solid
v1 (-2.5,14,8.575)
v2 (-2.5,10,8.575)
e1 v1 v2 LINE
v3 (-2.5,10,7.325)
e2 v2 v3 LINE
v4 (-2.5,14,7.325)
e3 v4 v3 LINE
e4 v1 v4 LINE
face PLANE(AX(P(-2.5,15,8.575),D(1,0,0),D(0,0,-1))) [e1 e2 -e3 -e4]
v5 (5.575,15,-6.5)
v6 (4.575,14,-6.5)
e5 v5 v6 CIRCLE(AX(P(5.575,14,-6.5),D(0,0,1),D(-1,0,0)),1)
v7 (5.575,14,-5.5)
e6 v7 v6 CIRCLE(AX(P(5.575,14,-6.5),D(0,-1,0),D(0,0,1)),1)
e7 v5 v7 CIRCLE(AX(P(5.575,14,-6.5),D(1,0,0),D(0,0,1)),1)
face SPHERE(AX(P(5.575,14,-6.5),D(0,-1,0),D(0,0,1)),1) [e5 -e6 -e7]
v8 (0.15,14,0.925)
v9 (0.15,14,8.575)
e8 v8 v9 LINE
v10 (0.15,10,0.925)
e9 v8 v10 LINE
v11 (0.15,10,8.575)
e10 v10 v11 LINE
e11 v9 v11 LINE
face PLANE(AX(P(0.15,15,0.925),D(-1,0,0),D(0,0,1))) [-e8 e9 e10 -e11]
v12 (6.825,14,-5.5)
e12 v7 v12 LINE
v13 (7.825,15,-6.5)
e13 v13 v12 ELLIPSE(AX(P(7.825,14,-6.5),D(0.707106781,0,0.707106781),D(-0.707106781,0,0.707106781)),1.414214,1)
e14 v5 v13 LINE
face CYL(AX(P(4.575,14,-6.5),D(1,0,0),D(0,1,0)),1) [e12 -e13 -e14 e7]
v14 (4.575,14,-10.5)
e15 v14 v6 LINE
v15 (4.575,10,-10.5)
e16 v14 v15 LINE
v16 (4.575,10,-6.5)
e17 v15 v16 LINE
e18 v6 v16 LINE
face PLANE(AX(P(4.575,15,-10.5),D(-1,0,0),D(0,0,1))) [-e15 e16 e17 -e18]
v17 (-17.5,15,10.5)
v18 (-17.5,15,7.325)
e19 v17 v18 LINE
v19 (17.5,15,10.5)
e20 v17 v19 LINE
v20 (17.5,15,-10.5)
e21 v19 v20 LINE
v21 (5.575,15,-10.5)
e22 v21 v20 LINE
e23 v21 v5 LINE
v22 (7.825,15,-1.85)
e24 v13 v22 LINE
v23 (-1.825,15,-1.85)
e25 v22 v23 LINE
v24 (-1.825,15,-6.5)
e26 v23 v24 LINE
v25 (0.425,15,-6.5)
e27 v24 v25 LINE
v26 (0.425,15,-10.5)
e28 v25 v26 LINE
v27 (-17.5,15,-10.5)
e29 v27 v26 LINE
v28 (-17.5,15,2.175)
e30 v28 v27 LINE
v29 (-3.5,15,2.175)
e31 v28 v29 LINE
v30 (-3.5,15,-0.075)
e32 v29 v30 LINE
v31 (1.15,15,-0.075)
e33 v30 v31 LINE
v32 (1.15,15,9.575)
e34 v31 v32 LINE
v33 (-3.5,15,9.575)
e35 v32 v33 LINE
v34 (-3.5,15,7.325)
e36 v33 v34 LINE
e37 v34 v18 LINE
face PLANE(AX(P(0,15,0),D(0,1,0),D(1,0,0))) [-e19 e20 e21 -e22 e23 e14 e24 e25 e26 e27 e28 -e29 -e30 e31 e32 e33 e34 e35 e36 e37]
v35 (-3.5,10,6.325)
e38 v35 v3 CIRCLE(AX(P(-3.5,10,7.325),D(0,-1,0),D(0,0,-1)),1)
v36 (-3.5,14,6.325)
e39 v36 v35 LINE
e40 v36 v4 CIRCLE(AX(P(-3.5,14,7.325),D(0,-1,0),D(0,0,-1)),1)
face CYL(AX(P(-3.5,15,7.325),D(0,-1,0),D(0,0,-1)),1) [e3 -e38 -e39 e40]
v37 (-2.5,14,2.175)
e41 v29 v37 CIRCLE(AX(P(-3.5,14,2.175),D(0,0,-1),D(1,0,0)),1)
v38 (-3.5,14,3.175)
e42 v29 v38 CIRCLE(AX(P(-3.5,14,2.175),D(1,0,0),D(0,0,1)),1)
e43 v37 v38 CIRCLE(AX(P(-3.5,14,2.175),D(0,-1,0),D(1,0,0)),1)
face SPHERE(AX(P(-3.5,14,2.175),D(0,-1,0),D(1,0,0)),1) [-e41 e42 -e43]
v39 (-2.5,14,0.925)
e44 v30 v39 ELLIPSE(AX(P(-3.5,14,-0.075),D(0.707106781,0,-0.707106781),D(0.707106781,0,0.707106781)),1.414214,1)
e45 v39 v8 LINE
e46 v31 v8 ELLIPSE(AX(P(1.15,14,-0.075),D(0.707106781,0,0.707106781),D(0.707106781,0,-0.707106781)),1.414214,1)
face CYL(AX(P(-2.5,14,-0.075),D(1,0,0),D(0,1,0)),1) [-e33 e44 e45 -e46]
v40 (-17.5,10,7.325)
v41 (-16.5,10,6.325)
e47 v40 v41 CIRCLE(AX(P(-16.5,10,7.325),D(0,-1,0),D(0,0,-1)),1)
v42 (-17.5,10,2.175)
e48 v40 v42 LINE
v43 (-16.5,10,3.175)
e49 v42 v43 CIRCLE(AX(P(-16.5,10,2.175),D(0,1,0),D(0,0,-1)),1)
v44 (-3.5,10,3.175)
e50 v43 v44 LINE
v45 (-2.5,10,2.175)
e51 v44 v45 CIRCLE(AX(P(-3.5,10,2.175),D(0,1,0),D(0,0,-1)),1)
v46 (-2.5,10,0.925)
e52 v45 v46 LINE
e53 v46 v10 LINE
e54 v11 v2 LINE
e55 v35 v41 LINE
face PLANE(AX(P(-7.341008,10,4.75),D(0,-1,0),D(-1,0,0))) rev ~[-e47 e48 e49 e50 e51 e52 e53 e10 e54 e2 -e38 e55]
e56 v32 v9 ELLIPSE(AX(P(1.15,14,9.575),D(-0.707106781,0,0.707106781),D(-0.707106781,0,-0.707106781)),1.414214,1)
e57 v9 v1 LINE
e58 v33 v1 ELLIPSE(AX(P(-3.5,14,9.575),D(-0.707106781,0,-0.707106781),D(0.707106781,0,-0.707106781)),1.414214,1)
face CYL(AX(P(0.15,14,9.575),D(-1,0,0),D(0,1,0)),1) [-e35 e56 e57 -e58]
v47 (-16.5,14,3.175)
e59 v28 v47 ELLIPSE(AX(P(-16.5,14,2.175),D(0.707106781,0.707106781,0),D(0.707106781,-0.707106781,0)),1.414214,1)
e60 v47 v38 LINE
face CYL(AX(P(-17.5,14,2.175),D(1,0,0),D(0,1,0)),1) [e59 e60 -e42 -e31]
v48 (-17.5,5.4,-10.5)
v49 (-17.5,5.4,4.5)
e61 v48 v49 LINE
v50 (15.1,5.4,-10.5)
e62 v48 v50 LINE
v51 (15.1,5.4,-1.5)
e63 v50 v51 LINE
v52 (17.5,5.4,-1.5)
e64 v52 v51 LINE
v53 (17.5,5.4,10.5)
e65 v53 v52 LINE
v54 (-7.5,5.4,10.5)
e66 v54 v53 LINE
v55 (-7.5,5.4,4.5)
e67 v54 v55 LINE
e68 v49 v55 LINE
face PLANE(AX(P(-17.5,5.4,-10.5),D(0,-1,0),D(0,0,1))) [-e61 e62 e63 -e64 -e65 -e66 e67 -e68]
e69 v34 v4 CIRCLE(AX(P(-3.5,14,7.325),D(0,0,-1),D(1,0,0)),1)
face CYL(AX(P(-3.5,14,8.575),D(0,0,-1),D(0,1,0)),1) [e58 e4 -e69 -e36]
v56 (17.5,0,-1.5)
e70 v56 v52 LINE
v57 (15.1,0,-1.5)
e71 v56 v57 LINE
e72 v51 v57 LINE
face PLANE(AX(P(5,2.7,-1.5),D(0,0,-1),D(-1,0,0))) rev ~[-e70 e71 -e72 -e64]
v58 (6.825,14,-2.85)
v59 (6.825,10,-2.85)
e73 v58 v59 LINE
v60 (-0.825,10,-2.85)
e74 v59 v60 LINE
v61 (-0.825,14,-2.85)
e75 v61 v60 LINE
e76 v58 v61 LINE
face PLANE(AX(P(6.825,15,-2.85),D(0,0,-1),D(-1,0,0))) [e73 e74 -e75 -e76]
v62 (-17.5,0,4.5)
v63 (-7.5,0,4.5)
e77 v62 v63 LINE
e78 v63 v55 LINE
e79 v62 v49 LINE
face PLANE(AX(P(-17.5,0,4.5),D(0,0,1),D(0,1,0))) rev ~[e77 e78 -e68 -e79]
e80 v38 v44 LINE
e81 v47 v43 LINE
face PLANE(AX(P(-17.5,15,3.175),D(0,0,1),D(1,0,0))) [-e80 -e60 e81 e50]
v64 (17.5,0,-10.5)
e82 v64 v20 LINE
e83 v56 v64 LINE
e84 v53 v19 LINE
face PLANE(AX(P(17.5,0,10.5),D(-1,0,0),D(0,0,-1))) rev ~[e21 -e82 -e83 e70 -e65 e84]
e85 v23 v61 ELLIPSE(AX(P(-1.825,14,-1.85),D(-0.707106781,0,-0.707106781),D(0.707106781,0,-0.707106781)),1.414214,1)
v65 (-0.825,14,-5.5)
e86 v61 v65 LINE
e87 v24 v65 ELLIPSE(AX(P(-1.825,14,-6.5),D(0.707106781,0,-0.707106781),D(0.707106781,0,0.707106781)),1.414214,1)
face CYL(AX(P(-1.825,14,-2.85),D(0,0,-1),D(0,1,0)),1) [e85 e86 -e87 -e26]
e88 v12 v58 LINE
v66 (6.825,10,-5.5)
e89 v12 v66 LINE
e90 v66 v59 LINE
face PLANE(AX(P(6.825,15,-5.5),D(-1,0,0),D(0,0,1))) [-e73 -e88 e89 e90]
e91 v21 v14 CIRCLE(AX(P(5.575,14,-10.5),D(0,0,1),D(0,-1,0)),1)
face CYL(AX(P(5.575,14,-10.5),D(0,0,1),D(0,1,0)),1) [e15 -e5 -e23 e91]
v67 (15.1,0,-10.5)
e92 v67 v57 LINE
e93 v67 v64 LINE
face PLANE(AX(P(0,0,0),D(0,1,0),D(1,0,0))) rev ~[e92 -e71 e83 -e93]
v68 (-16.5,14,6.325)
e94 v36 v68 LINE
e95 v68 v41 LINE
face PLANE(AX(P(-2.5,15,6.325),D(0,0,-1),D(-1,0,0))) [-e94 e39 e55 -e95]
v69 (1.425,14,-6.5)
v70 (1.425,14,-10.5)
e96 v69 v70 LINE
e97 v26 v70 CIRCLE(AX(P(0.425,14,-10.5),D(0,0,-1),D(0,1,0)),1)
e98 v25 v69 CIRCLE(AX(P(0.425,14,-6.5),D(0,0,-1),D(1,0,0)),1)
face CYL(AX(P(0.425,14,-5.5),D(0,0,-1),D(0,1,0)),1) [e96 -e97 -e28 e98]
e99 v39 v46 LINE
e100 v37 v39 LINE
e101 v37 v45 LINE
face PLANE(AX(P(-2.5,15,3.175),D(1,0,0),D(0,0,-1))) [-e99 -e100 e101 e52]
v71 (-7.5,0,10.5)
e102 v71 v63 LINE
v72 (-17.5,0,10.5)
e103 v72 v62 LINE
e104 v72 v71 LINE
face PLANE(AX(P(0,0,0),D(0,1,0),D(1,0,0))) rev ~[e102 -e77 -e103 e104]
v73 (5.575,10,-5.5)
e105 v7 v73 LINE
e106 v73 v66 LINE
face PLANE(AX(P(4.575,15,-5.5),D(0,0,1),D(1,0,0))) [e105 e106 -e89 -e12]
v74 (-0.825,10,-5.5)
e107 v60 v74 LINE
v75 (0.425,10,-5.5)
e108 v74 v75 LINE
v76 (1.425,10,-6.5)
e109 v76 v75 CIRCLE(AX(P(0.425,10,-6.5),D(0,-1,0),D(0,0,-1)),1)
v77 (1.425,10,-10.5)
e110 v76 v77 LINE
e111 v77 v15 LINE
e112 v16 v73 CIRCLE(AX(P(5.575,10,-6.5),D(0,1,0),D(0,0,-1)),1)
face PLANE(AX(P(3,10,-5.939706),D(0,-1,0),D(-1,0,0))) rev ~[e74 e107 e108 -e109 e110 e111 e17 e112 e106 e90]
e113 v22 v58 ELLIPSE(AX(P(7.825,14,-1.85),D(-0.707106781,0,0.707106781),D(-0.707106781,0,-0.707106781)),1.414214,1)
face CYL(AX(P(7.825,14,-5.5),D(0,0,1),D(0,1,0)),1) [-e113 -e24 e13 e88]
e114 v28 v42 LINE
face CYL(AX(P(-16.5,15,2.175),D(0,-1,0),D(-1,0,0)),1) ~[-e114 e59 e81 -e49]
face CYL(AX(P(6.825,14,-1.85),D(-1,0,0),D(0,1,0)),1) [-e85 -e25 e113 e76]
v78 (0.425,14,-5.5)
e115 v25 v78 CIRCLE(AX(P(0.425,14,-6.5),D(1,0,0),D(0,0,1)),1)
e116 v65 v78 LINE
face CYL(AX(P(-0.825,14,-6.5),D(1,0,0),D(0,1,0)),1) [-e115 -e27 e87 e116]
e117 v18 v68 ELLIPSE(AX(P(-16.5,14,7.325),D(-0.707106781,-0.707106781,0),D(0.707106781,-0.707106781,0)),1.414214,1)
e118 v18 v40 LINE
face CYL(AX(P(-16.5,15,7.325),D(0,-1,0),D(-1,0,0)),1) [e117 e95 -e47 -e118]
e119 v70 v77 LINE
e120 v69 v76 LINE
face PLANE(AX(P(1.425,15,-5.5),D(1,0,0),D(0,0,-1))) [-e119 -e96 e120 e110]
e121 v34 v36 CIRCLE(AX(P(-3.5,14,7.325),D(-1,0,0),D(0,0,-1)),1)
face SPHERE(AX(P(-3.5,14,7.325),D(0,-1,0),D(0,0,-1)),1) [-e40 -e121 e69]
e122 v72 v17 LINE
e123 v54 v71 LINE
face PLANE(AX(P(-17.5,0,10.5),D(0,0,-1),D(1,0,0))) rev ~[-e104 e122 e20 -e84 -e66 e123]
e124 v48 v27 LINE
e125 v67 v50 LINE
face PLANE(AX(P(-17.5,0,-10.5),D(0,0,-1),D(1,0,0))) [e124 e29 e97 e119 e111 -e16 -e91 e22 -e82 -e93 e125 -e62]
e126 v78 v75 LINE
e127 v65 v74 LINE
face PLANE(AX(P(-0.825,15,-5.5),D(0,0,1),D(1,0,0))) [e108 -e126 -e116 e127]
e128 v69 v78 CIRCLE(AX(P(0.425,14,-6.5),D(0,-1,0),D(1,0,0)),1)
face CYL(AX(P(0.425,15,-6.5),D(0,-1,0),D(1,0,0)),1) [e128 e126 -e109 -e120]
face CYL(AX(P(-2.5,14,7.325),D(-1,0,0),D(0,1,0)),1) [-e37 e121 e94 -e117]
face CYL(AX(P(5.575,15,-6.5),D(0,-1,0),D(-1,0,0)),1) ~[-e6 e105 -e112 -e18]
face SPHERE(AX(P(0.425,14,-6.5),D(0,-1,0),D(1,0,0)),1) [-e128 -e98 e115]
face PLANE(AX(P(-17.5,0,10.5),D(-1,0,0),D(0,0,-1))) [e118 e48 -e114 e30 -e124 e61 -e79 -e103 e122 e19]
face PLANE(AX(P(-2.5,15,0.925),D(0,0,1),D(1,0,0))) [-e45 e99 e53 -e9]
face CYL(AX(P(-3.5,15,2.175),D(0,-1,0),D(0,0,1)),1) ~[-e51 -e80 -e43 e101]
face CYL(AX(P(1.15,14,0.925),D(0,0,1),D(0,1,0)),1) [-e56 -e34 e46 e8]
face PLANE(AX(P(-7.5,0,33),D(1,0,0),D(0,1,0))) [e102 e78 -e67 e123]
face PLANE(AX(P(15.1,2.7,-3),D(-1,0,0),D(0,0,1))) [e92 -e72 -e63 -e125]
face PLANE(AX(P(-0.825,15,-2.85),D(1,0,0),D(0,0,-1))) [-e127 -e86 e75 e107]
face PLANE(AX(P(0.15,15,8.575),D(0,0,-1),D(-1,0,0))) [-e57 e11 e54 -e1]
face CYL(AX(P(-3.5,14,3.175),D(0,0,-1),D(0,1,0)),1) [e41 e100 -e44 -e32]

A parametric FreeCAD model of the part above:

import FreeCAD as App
import Part
import Sketcher
Q = App.Units.Quantity


def edges_at(feature, points):
    """Names of the edges that pass closest to the given points."""
    edges = feature.Shape.Edges
    near = lambda p: min(range(len(edges)), key=lambda i: edges[i].distToShape(Part.Vertex(*p))[0])
    return sorted({f"Edge{near(p) + 1}" for p in points})


def add_polygon(sketch, points):
    """Adds a closed chain of lines whose ends are joined by coincident constraints."""
    first, n = sketch.GeometryCount, len(points)
    for a, b in zip(points, points[1:] + points[:1]):
        sketch.addGeometry(Part.LineSegment(App.Vector(*a, 0), App.Vector(*b, 0)), False)
    for i in range(n):
        sketch.addConstraint(Sketcher.Constraint("Coincident", first + i, 2, first + (i + 1) % n, 1))

doc = App.newDocument("Part")
body = doc.addObject("PartDesign::Body", "Body")

# Sketch on XZ plane
sketch1 = doc.addObject("Sketcher::SketchObject", "Sketch")
body.addObject(sketch1)
sketch1.AttachmentSupport = (doc.XZ_Plane, [""])
sketch1.MapMode = "FlatFace"
add_polygon(sketch1, [(-18, -10), (-18, 10), (18, 10), (18, -10)])  # lines 0-3
sketch1.addConstraint([
    Sketcher.Constraint("Vertical", 0),
    Sketcher.Constraint("Horizontal", 1),
    Sketcher.Constraint("Vertical", 2),
    Sketcher.Constraint("Horizontal", 3),
    Sketcher.Constraint("Symmetric", 0, 2, 2, 2, -1, 1),
    Sketcher.Constraint("DistanceX", 1, 1, 1, 2, Q("35 mm")),
    Sketcher.Constraint("DistanceY", 0, 1, 0, 2, Q("21 mm")),
])
pad1 = doc.addObject("PartDesign::Pad", "Pad")
body.addObject(pad1)
pad1.Profile = sketch1
pad1.Length = 15
pad1.Reversed = True

# Sketch on YZ plane
sketch2 = doc.addObject("Sketcher::SketchObject", "Sketch001")
body.addObject(sketch2)
sketch2.AttachmentSupport = (doc.YZ_Plane, [""])
sketch2.MapMode = "FlatFace"
sketch2.AttachmentOffset = App.Placement(App.Vector(0, 0, -17.5), App.Rotation())
add_polygon(sketch2, [(5, -10), (0, -10), (0, 4), (5, 4)])  # lines 0-3
sketch2.addConstraint([
    Sketcher.Constraint("Horizontal", 0),
    Sketcher.Constraint("Vertical", 1),
    Sketcher.Constraint("Horizontal", 2),
    Sketcher.Constraint("Vertical", 3),
    Sketcher.Constraint("PointOnObject", 0, 2, -2),
    Sketcher.Constraint("DistanceY", 1, 1, 1, 2, Q("15 mm")),
    Sketcher.Constraint("DistanceX", 0, 2, 0, 1, Q("5.4 mm")),
    Sketcher.Constraint("DistanceY", 0, 2, -1, 1, Q("10.5 mm")),
])
pocket1 = doc.addObject("PartDesign::Pocket", "Pocket")
body.addObject(pocket1)
pocket1.Profile = sketch2
pocket1.Length = 32.6
pocket1.Reversed = True

# Sketch on XZ plane
sketch3 = doc.addObject("Sketcher::SketchObject", "Sketch002")
body.addObject(sketch3)
sketch3.AttachmentSupport = (doc.XZ_Plane, [""])
sketch3.MapMode = "FlatFace"
sketch3.AttachmentOffset = App.Placement(App.Vector(0, 0, -15), App.Rotation())
add_polygon(sketch3, [(0.1, 8.6), (0.1, 0.9), (-2.5, 0.9), (-2.5, 3.2), (-17.5, 3.2), (-17.5, 6.3), (-2.5, 6.3), (-2.5, 8.6)])  # lines 0-7
add_polygon(sketch3, [(4.6, -10.5), (1.4, -10.5), (1.4, -5.5), (-0.8, -5.5), (-0.8, -2.9), (6.8, -2.9), (6.8, -5.5), (4.6, -5.5)])  # lines 8-15
sketch3.addConstraint([
    Sketcher.Constraint("Vertical", 0),
    Sketcher.Constraint("Horizontal", 1),
    Sketcher.Constraint("Vertical", 2),
    Sketcher.Constraint("Horizontal", 3),
    Sketcher.Constraint("Vertical", 4),
    Sketcher.Constraint("Horizontal", 5),
    Sketcher.Constraint("Vertical", 6),
    Sketcher.Constraint("Horizontal", 7),
    Sketcher.Constraint("Horizontal", 8),
    Sketcher.Constraint("Vertical", 9),
    Sketcher.Constraint("Horizontal", 10),
    Sketcher.Constraint("Vertical", 11),
    Sketcher.Constraint("Horizontal", 12),
    Sketcher.Constraint("Vertical", 13),
    Sketcher.Constraint("Horizontal", 14),
    Sketcher.Constraint("Vertical", 15),
    Sketcher.Constraint("Horizontal", 10, 2, 13, 2),
    Sketcher.Constraint("Vertical", 2, 2, 5, 2),
    Sketcher.Constraint("Equal", 10, 14),
    Sketcher.Constraint("Equal", 12, 0),
    Sketcher.Constraint("Equal", 14, 2),
    Sketcher.Constraint("Equal", 8, 4),
    Sketcher.Constraint("Equal", 7, 11),
    Sketcher.Constraint("DistanceX", 3, 2, 3, 1, Q("15 mm")),
    Sketcher.Constraint("DistanceY", 9, 1, 9, 2, Q("5 mm")),
    Sketcher.Constraint("DistanceX", 1, 2, 1, 1, Q("2.65 mm")),
    Sketcher.Constraint("DistanceX", 8, 2, 8, 1, Q("3.15 mm")),
    Sketcher.Constraint("DistanceX", 10, 2, 10, 1, Q("2.25 mm")),
    Sketcher.Constraint("DistanceX", 1, 2, -1, 1, Q("2.5 mm")),
    Sketcher.Constraint("DistanceY", 8, 2, -1, 1, Q("10.5 mm")),
    Sketcher.Constraint("DistanceY", -1, 1, 0, 2, Q("0.925 mm")),
    Sketcher.Constraint("DistanceX", -1, 1, 8, 2, Q("1.425 mm")),
])
pocket2 = doc.addObject("PartDesign::Pocket", "Pocket001")
body.addObject(pocket2)
pocket2.Profile = sketch3
pocket2.Length = 5
pocket2.Reversed = True
doc.recompute()

fillet = doc.addObject("PartDesign::Fillet", "Fillet")
body.addObject(fillet)
fillet.Base = (pocket2, edges_at(pocket2, [
    (-2.5, 12.5, 6.325),
    (-17.5, 12.5, 6.325),
    (-17.5, 12.5, 3.175),
    (-2.5, 12.5, 3.175),
    (-1.175, 15, 0.925),
    (-2.5, 15, 2.05),
    (-10, 15, 3.175),
    (-10, 15, 6.325),
    (-2.5, 15, 7.45),
    (-1.175, 15, 8.575),
    (0.15, 15, 4.75),
    (1.425, 12.5, -5.5),
    (4.575, 12.5, -5.5),
    (1.425, 15, -8),
    (0.3, 15, -5.5),
    (-0.825, 15, -4.175),
    (3, 15, -2.85),
    (6.825, 15, -4.175),
    (5.7, 15, -5.5),
    (4.575, 15, -8),
]))
fillet.Radius = 1

# Sketch on XY plane
sketch4 = doc.addObject("Sketcher::SketchObject", "Sketch003")
body.addObject(sketch4)
sketch4.AttachmentSupport = (doc.XY_Plane, [""])
sketch4.MapMode = "FlatFace"
sketch4.AttachmentOffset = App.Placement(App.Vector(0, 0, 4.5), App.Rotation())
add_polygon(sketch4, [(18, 5), (18, 0), (-8, 0), (-8, 5)])  # lines 0-3
sketch4.addConstraint([
    Sketcher.Constraint("Vertical", 0),
    Sketcher.Constraint("Horizontal", 1),
    Sketcher.Constraint("Vertical", 2),
    Sketcher.Constraint("Horizontal", 3),
    Sketcher.Constraint("PointOnObject", 0, 2, -1),
    Sketcher.Constraint("DistanceX", 1, 2, 1, 1, Q("25 mm")),
    Sketcher.Constraint("DistanceY", 0, 2, 0, 1, Q("5.4 mm")),
    Sketcher.Constraint("DistanceX", -1, 1, 0, 2, Q("17.5 mm")),
])
pocket3 = doc.addObject("PartDesign::Pocket", "Pocket002")
body.addObject(pocket3)
pocket3.Profile = sketch4
pocket3.Type = "TwoLengths"
pocket3.Length = 6
pocket3.Length2 = 28.5

doc.recompute()
